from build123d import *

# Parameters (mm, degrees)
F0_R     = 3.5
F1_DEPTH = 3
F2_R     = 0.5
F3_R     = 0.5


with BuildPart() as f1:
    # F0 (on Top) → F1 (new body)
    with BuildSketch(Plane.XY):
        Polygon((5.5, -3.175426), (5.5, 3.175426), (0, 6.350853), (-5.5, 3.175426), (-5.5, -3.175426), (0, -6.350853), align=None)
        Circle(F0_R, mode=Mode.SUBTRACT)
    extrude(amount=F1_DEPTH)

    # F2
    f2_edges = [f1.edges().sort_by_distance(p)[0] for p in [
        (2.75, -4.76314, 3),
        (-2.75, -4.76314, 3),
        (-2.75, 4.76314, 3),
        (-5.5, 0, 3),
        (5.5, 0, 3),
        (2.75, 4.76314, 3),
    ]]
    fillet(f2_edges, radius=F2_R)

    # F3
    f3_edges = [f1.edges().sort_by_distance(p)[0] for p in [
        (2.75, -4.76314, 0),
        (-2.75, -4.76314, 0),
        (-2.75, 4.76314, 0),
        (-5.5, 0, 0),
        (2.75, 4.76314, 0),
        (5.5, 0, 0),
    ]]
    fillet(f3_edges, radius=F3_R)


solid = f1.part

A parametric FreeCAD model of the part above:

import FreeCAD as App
import Part
import Sketcher
Q = App.Units.Quantity


def edges_at(feature, points):
    """Names of the edges that pass closest to the given points."""
    edges = feature.Shape.Edges
    near = lambda p: min(range(len(edges)), key=lambda i: edges[i].distToShape(Part.Vertex(*p))[0])
    return sorted({f"Edge{near(p) + 1}" for p in points})


def add_polygon(sketch, points):
    """Adds a closed chain of lines whose ends are joined by coincident constraints."""
    first, n = sketch.GeometryCount, len(points)
    for a, b in zip(points, points[1:] + points[:1]):
        sketch.addGeometry(Part.LineSegment(App.Vector(*a, 0), App.Vector(*b, 0)), False)
    for i in range(n):
        sketch.addConstraint(Sketcher.Constraint("Coincident", first + i, 2, first + (i + 1) % n, 1))

doc = App.newDocument("Part")
body = doc.addObject("PartDesign::Body", "Body")

# Sketch on XY plane
sketch1 = body.newObject("Sketcher::SketchObject", "Sketch")
sketch1.AttachmentSupport = (doc.getObject("XY_Plane"), [""])
sketch1.MapMode = "FlatFace"
add_polygon(sketch1, [(5.5, -3.2), (5.5, 3.2), (0, 6.4), (-5.5, 3.2), (-5.5, -3.2), (0, -6.4)])  # lines 0-5
sketch1.addGeometry(Part.Circle(App.Vector(0, 0, 0), App.Vector(0, 0, 1), 3.5), False)  # 6
sketch1.addConstraint(Sketcher.Constraint("Vertical", 0))
sketch1.addConstraint(Sketcher.Constraint("Vertical", 3))
sketch1.addConstraint(Sketcher.Constraint("Coincident", 6, 3, -1, 1))
sketch1.addConstraint(Sketcher.Constraint("Symmetric", 0, 2, 3, 2, -1, 1))
sketch1.addConstraint(Sketcher.Constraint("Symmetric", 1, 2, 4, 2, -1, 1))
sketch1.addConstraint(Sketcher.Constraint("PointOnObject", 1, 2, -2))
sketch1.addConstraint(Sketcher.Constraint("Parallel", 2, 5))
sketch1.addConstraint(Sketcher.Constraint("Horizontal", 0, 2, 2, 2))
sketch1.addConstraint(Sketcher.Constraint("Diameter", 6, 7.0))
sketch1.addConstraint(Sketcher.Constraint("Angle", 1, Q("149.999996 deg")))
sketch1.addConstraint(Sketcher.Constraint("DistanceX", 2, 2, 0, 2, 11.0))
sketch1.addConstraint(Sketcher.Constraint("DistanceY", 0, 1, 0, 2, 6.350852))
pad1 = body.newObject("PartDesign::Pad", "Pad")
pad1.Profile = sketch1
pad1.Length = 3
doc.recompute()

fillet = body.newObject("PartDesign::Fillet", "Fillet")
fillet.Base = (pad1, edges_at(pad1, [
    (2.75, -4.763, 3),
    (-2.75, -4.763, 3),
    (-2.75, 4.763, 3),
    (-5.5, 0, 3),
    (5.5, 0, 3),
    (2.75, 4.763, 3),
]))
fillet.Radius = 0.5
doc.recompute()

fillet2 = body.newObject("PartDesign::Fillet", "Fillet001")
fillet2.Base = (fillet, edges_at(fillet, [
    (2.75, -4.763, 0),
    (-2.75, -4.763, 0),
    (-2.75, 4.763, 0),
    (-5.5, 0, 0),
    (2.75, 4.763, 0),
    (5.5, 0, 0),
]))
fillet2.Radius = 0.5

doc.recompute()
